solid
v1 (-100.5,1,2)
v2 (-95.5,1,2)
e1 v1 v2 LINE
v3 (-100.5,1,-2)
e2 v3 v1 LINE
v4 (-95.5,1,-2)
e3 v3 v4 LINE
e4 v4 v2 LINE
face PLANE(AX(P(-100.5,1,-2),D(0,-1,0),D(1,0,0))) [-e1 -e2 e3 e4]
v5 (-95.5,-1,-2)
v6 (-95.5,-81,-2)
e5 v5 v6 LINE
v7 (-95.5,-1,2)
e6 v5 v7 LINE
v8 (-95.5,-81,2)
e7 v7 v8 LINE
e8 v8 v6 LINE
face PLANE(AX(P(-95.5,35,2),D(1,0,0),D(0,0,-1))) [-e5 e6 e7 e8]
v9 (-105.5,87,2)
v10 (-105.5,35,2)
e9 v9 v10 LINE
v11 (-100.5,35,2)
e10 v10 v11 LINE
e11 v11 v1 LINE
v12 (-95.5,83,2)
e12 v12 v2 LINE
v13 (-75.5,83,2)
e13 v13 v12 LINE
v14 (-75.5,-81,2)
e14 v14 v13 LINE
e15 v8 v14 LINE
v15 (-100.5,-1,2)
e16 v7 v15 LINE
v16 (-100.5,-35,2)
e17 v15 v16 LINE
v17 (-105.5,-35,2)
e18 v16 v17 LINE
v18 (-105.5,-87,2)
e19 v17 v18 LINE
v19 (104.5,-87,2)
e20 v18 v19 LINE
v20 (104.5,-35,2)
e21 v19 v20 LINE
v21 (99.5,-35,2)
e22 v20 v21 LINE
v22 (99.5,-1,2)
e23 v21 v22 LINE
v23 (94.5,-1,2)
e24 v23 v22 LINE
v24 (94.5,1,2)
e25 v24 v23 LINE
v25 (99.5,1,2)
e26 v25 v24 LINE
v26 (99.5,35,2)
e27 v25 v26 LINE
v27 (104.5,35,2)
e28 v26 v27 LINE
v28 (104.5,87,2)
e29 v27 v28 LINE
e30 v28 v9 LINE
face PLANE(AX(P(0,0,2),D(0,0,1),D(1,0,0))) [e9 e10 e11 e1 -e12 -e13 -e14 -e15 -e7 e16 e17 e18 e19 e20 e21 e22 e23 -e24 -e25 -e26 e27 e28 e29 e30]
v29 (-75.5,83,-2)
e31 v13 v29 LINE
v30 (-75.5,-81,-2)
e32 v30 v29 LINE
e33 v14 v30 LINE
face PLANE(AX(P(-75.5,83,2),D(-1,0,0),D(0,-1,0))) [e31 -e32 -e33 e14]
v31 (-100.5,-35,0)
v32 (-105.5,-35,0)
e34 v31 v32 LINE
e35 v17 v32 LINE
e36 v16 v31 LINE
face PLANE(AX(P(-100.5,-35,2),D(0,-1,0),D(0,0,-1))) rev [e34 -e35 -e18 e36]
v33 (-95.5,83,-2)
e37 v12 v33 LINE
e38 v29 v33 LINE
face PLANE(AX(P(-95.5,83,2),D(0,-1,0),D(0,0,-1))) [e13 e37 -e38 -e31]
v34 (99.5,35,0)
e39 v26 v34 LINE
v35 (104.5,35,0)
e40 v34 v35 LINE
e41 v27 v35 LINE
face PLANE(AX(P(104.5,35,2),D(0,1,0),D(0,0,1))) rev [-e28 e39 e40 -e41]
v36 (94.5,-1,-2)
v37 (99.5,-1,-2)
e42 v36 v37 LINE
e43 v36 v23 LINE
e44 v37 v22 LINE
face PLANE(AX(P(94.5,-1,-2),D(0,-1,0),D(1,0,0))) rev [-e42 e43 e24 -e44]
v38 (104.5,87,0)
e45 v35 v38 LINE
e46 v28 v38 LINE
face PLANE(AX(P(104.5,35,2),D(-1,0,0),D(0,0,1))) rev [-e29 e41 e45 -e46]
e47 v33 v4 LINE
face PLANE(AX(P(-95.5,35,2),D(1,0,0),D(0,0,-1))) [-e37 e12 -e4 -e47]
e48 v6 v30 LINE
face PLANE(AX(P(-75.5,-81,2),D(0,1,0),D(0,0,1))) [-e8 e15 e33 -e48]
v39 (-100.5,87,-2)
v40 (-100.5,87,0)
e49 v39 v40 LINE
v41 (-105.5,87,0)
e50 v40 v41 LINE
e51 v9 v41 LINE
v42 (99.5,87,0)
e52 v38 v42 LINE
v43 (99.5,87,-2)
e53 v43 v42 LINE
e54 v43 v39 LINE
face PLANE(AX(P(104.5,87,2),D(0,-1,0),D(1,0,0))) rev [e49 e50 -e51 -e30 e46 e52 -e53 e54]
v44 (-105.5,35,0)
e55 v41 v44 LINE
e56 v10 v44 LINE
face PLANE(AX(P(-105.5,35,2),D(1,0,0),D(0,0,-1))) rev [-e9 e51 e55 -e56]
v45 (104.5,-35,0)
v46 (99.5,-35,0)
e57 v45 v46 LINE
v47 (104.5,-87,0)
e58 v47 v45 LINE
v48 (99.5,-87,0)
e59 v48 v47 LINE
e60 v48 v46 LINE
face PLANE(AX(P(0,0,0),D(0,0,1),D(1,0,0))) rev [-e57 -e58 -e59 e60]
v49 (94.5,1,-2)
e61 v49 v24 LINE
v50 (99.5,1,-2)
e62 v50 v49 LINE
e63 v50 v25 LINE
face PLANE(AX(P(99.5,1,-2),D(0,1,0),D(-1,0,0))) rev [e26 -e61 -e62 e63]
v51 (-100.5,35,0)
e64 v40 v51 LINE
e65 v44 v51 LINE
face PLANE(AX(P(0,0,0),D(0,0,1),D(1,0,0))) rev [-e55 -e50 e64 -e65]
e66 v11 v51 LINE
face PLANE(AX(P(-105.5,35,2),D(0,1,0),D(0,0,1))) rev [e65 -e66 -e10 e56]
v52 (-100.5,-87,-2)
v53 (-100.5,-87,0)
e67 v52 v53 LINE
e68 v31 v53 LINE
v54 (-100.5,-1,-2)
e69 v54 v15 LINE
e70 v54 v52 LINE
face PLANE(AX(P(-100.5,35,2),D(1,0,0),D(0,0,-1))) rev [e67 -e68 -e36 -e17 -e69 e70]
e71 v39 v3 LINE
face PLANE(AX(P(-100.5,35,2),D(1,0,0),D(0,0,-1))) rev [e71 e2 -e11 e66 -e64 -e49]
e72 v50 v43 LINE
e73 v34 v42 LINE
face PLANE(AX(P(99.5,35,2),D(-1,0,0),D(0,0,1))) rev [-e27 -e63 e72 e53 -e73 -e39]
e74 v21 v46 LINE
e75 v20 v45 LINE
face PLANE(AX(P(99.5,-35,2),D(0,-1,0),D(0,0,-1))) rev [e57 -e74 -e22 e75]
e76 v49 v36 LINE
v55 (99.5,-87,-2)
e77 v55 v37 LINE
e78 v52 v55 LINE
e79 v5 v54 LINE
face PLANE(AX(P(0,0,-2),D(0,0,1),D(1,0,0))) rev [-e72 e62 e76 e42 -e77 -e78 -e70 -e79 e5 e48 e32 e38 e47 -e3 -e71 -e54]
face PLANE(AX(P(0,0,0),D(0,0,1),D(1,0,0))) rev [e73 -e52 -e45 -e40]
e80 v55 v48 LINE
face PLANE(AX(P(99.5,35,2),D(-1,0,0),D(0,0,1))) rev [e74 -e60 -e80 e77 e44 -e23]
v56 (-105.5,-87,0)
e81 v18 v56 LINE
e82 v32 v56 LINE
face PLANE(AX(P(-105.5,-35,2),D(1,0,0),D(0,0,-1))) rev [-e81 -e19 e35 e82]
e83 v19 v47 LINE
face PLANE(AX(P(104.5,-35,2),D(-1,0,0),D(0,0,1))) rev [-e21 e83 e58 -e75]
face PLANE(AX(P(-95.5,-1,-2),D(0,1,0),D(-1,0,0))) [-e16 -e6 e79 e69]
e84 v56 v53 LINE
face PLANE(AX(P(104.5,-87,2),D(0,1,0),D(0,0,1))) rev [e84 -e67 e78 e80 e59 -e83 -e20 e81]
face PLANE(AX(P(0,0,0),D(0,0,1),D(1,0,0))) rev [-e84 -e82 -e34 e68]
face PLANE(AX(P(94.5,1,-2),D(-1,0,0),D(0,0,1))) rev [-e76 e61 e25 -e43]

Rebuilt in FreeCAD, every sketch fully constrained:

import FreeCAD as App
import Part
import Sketcher
Q = App.Units.Quantity


def add_polygon(sketch, points):
    """Adds a closed chain of lines whose ends are joined by coincident constraints."""
    first, n = sketch.GeometryCount, len(points)
    for a, b in zip(points, points[1:] + points[:1]):
        sketch.addGeometry(Part.LineSegment(App.Vector(*a, 0), App.Vector(*b, 0)), False)
    for i in range(n):
        sketch.addConstraint(Sketcher.Constraint("Coincident", first + i, 2, first + (i + 1) % n, 1))

doc = App.newDocument("Part")
body = doc.addObject("PartDesign::Body", "Body")

# Sketch on XY plane
sketch1 = body.newObject("Sketcher::SketchObject", "Sketch")
sketch1.AttachmentSupport = (doc.getObject("XY_Plane"), [""])
sketch1.MapMode = "FlatFace"
add_polygon(sketch1, [(104.5, 35), (104.5, 87), (-105.5, 87), (-105.5, 35), (-100.5, 35), (-100.5, -35), (-105.5, -35), (-105.5, -87), (104.5, -87), (104.5, -35), (99.5, -35), (99.5, 35)])  # lines 0-11
add_polygon(sketch1, [(-95.5, -81), (-95.5, 83), (-75.5, 83), (-75.5, -81)])  # lines 12-15
sketch1.addConstraint([
    Sketcher.Constraint("Vertical", 0),
    Sketcher.Constraint("Horizontal", 1),
    Sketcher.Constraint("Vertical", 2),
    Sketcher.Constraint("Horizontal", 3),
    Sketcher.Constraint("Vertical", 4),
    Sketcher.Constraint("Horizontal", 5),
    Sketcher.Constraint("Vertical", 6),
    Sketcher.Constraint("Horizontal", 7),
    Sketcher.Constraint("Vertical", 8),
    Sketcher.Constraint("Horizontal", 9),
    Sketcher.Constraint("Vertical", 10),
    Sketcher.Constraint("Horizontal", 11),
    Sketcher.Constraint("Vertical", 12),
    Sketcher.Constraint("Horizontal", 13),
    Sketcher.Constraint("Vertical", 14),
    Sketcher.Constraint("Horizontal", 15),
    Sketcher.Constraint("Symmetric", 2, 2, 5, 2, -1),
    Sketcher.Constraint("Symmetric", 0, 2, 7, 2, -1),
    Sketcher.Constraint("Horizontal", 5, 2, 8, 2),
    Sketcher.Constraint("Horizontal", 3, 2, 10, 2),
    Sketcher.Constraint("Equal", 5, 9),
    Sketcher.Constraint("DistanceX", 1, 2, 1, 1, Q("210 mm")),
    Sketcher.Constraint("DistanceX", 3, 1, 3, 2, Q("5 mm")),
    Sketcher.Constraint("DistanceX", 13, 1, 13, 2, Q("20 mm")),
    Sketcher.Constraint("DistanceY", 0, 1, 0, 2, Q("52 mm")),
    Sketcher.Constraint("DistanceY", 4, 2, 4, 1, Q("70 mm")),
    Sketcher.Constraint("DistanceY", 12, 1, 12, 2, Q("164 mm")),
    Sketcher.Constraint("DistanceY", -1, 1, 12, 2, Q("83 mm")),
    Sketcher.Constraint("DistanceX", 1, 2, 12, 2, Q("10 mm")),
    Sketcher.Constraint("DistanceX", -1, 1, 0, 2, Q("104.5 mm")),
])
pad1 = body.newObject("PartDesign::Pad", "Pad")
pad1.Profile = sketch1
pad1.Length = 2

# Sketch on XY plane
sketch2 = body.newObject("Sketcher::SketchObject", "Sketch001")
sketch2.AttachmentSupport = (doc.getObject("XY_Plane"), [""])
sketch2.MapMode = "FlatFace"
add_polygon(sketch2, [(-100.5, 87), (-100.5, -87), (99.5, -87), (99.5, 87)])  # lines 0-3
add_polygon(sketch2, [(-75.5, -81), (-95.5, -81), (-95.5, 83), (-75.5, 83)])  # lines 4-7
sketch2.addConstraint([
    Sketcher.Constraint("Vertical", 0),
    Sketcher.Constraint("Horizontal", 1),
    Sketcher.Constraint("Vertical", 2),
    Sketcher.Constraint("Horizontal", 3),
    Sketcher.Constraint("Horizontal", 4),
    Sketcher.Constraint("Vertical", 5),
    Sketcher.Constraint("Horizontal", 6),
    Sketcher.Constraint("Vertical", 7),
    Sketcher.Constraint("DistanceX", 1, 1, 1, 2, Q("200 mm")),
    Sketcher.Constraint("DistanceX", 4, 2, 4, 1, Q("20 mm")),
    Sketcher.Constraint("DistanceY", 0, 2, 0, 1, Q("174 mm")),
    Sketcher.Constraint("DistanceY", 5, 1, 5, 2, Q("164 mm")),
    Sketcher.Constraint("DistanceY", 0, 2, -1, 1, Q("87 mm")),
    Sketcher.Constraint("DistanceY", 4, 2, -1, 1, Q("81 mm")),
    Sketcher.Constraint("DistanceX", 0, 2, 4, 2, Q("5 mm")),
    Sketcher.Constraint("DistanceX", 0, 2, -1, 1, Q("100.5 mm")),
])
pad2 = body.newObject("PartDesign::Pad", "Pad001")
pad2.Profile = sketch2
pad2.Length = 2
pad2.Reversed = True

# Sketch on XY plane
sketch3 = body.newObject("Sketcher::SketchObject", "Sketch002")
sketch3.AttachmentSupport = (doc.getObject("XY_Plane"), [""])
sketch3.MapMode = "FlatFace"
add_polygon(sketch3, [(-100.5, 1), (-100.5, -1), (-95.5, -1), (-95.5, 1)])  # lines 0-3
add_polygon(sketch3, [(99.5, 1), (94.5, 1), (94.5, -1), (99.5, -1)])  # lines 4-7
sketch3.addConstraint([
    Sketcher.Constraint("Vertical", 0),
    Sketcher.Constraint("Horizontal", 1),
    Sketcher.Constraint("Vertical", 2),
    Sketcher.Constraint("Horizontal", 3),
    Sketcher.Constraint("Horizontal", 4),
    Sketcher.Constraint("Vertical", 5),
    Sketcher.Constraint("Horizontal", 6),
    Sketcher.Constraint("Vertical", 7),
    Sketcher.Constraint("Horizontal", 3, 2, 4, 2),
    Sketcher.Constraint("Horizontal", 1, 2, 5, 2),
    Sketcher.Constraint("Equal", 3, 4),
    Sketcher.Constraint("DistanceX", 1, 1, 1, 2, Q("5 mm")),
    Sketcher.Constraint("DistanceY", 0, 2, 0, 1, Q("2 mm")),
    Sketcher.Constraint("DistanceY", 0, 2, -1, 1, Q("1 mm")),
    Sketcher.Constraint("DistanceX", 2, 2, 4, 2, Q("190 mm")),
    Sketcher.Constraint("DistanceX", 0, 2, -1, 1, Q("100.5 mm")),
])
pocket1 = body.newObject("PartDesign::Pocket", "Pocket")
pocket1.Profile = sketch3
pocket1.Type = "ThroughAll"
pocket1.Midplane = True

doc.recompute()
